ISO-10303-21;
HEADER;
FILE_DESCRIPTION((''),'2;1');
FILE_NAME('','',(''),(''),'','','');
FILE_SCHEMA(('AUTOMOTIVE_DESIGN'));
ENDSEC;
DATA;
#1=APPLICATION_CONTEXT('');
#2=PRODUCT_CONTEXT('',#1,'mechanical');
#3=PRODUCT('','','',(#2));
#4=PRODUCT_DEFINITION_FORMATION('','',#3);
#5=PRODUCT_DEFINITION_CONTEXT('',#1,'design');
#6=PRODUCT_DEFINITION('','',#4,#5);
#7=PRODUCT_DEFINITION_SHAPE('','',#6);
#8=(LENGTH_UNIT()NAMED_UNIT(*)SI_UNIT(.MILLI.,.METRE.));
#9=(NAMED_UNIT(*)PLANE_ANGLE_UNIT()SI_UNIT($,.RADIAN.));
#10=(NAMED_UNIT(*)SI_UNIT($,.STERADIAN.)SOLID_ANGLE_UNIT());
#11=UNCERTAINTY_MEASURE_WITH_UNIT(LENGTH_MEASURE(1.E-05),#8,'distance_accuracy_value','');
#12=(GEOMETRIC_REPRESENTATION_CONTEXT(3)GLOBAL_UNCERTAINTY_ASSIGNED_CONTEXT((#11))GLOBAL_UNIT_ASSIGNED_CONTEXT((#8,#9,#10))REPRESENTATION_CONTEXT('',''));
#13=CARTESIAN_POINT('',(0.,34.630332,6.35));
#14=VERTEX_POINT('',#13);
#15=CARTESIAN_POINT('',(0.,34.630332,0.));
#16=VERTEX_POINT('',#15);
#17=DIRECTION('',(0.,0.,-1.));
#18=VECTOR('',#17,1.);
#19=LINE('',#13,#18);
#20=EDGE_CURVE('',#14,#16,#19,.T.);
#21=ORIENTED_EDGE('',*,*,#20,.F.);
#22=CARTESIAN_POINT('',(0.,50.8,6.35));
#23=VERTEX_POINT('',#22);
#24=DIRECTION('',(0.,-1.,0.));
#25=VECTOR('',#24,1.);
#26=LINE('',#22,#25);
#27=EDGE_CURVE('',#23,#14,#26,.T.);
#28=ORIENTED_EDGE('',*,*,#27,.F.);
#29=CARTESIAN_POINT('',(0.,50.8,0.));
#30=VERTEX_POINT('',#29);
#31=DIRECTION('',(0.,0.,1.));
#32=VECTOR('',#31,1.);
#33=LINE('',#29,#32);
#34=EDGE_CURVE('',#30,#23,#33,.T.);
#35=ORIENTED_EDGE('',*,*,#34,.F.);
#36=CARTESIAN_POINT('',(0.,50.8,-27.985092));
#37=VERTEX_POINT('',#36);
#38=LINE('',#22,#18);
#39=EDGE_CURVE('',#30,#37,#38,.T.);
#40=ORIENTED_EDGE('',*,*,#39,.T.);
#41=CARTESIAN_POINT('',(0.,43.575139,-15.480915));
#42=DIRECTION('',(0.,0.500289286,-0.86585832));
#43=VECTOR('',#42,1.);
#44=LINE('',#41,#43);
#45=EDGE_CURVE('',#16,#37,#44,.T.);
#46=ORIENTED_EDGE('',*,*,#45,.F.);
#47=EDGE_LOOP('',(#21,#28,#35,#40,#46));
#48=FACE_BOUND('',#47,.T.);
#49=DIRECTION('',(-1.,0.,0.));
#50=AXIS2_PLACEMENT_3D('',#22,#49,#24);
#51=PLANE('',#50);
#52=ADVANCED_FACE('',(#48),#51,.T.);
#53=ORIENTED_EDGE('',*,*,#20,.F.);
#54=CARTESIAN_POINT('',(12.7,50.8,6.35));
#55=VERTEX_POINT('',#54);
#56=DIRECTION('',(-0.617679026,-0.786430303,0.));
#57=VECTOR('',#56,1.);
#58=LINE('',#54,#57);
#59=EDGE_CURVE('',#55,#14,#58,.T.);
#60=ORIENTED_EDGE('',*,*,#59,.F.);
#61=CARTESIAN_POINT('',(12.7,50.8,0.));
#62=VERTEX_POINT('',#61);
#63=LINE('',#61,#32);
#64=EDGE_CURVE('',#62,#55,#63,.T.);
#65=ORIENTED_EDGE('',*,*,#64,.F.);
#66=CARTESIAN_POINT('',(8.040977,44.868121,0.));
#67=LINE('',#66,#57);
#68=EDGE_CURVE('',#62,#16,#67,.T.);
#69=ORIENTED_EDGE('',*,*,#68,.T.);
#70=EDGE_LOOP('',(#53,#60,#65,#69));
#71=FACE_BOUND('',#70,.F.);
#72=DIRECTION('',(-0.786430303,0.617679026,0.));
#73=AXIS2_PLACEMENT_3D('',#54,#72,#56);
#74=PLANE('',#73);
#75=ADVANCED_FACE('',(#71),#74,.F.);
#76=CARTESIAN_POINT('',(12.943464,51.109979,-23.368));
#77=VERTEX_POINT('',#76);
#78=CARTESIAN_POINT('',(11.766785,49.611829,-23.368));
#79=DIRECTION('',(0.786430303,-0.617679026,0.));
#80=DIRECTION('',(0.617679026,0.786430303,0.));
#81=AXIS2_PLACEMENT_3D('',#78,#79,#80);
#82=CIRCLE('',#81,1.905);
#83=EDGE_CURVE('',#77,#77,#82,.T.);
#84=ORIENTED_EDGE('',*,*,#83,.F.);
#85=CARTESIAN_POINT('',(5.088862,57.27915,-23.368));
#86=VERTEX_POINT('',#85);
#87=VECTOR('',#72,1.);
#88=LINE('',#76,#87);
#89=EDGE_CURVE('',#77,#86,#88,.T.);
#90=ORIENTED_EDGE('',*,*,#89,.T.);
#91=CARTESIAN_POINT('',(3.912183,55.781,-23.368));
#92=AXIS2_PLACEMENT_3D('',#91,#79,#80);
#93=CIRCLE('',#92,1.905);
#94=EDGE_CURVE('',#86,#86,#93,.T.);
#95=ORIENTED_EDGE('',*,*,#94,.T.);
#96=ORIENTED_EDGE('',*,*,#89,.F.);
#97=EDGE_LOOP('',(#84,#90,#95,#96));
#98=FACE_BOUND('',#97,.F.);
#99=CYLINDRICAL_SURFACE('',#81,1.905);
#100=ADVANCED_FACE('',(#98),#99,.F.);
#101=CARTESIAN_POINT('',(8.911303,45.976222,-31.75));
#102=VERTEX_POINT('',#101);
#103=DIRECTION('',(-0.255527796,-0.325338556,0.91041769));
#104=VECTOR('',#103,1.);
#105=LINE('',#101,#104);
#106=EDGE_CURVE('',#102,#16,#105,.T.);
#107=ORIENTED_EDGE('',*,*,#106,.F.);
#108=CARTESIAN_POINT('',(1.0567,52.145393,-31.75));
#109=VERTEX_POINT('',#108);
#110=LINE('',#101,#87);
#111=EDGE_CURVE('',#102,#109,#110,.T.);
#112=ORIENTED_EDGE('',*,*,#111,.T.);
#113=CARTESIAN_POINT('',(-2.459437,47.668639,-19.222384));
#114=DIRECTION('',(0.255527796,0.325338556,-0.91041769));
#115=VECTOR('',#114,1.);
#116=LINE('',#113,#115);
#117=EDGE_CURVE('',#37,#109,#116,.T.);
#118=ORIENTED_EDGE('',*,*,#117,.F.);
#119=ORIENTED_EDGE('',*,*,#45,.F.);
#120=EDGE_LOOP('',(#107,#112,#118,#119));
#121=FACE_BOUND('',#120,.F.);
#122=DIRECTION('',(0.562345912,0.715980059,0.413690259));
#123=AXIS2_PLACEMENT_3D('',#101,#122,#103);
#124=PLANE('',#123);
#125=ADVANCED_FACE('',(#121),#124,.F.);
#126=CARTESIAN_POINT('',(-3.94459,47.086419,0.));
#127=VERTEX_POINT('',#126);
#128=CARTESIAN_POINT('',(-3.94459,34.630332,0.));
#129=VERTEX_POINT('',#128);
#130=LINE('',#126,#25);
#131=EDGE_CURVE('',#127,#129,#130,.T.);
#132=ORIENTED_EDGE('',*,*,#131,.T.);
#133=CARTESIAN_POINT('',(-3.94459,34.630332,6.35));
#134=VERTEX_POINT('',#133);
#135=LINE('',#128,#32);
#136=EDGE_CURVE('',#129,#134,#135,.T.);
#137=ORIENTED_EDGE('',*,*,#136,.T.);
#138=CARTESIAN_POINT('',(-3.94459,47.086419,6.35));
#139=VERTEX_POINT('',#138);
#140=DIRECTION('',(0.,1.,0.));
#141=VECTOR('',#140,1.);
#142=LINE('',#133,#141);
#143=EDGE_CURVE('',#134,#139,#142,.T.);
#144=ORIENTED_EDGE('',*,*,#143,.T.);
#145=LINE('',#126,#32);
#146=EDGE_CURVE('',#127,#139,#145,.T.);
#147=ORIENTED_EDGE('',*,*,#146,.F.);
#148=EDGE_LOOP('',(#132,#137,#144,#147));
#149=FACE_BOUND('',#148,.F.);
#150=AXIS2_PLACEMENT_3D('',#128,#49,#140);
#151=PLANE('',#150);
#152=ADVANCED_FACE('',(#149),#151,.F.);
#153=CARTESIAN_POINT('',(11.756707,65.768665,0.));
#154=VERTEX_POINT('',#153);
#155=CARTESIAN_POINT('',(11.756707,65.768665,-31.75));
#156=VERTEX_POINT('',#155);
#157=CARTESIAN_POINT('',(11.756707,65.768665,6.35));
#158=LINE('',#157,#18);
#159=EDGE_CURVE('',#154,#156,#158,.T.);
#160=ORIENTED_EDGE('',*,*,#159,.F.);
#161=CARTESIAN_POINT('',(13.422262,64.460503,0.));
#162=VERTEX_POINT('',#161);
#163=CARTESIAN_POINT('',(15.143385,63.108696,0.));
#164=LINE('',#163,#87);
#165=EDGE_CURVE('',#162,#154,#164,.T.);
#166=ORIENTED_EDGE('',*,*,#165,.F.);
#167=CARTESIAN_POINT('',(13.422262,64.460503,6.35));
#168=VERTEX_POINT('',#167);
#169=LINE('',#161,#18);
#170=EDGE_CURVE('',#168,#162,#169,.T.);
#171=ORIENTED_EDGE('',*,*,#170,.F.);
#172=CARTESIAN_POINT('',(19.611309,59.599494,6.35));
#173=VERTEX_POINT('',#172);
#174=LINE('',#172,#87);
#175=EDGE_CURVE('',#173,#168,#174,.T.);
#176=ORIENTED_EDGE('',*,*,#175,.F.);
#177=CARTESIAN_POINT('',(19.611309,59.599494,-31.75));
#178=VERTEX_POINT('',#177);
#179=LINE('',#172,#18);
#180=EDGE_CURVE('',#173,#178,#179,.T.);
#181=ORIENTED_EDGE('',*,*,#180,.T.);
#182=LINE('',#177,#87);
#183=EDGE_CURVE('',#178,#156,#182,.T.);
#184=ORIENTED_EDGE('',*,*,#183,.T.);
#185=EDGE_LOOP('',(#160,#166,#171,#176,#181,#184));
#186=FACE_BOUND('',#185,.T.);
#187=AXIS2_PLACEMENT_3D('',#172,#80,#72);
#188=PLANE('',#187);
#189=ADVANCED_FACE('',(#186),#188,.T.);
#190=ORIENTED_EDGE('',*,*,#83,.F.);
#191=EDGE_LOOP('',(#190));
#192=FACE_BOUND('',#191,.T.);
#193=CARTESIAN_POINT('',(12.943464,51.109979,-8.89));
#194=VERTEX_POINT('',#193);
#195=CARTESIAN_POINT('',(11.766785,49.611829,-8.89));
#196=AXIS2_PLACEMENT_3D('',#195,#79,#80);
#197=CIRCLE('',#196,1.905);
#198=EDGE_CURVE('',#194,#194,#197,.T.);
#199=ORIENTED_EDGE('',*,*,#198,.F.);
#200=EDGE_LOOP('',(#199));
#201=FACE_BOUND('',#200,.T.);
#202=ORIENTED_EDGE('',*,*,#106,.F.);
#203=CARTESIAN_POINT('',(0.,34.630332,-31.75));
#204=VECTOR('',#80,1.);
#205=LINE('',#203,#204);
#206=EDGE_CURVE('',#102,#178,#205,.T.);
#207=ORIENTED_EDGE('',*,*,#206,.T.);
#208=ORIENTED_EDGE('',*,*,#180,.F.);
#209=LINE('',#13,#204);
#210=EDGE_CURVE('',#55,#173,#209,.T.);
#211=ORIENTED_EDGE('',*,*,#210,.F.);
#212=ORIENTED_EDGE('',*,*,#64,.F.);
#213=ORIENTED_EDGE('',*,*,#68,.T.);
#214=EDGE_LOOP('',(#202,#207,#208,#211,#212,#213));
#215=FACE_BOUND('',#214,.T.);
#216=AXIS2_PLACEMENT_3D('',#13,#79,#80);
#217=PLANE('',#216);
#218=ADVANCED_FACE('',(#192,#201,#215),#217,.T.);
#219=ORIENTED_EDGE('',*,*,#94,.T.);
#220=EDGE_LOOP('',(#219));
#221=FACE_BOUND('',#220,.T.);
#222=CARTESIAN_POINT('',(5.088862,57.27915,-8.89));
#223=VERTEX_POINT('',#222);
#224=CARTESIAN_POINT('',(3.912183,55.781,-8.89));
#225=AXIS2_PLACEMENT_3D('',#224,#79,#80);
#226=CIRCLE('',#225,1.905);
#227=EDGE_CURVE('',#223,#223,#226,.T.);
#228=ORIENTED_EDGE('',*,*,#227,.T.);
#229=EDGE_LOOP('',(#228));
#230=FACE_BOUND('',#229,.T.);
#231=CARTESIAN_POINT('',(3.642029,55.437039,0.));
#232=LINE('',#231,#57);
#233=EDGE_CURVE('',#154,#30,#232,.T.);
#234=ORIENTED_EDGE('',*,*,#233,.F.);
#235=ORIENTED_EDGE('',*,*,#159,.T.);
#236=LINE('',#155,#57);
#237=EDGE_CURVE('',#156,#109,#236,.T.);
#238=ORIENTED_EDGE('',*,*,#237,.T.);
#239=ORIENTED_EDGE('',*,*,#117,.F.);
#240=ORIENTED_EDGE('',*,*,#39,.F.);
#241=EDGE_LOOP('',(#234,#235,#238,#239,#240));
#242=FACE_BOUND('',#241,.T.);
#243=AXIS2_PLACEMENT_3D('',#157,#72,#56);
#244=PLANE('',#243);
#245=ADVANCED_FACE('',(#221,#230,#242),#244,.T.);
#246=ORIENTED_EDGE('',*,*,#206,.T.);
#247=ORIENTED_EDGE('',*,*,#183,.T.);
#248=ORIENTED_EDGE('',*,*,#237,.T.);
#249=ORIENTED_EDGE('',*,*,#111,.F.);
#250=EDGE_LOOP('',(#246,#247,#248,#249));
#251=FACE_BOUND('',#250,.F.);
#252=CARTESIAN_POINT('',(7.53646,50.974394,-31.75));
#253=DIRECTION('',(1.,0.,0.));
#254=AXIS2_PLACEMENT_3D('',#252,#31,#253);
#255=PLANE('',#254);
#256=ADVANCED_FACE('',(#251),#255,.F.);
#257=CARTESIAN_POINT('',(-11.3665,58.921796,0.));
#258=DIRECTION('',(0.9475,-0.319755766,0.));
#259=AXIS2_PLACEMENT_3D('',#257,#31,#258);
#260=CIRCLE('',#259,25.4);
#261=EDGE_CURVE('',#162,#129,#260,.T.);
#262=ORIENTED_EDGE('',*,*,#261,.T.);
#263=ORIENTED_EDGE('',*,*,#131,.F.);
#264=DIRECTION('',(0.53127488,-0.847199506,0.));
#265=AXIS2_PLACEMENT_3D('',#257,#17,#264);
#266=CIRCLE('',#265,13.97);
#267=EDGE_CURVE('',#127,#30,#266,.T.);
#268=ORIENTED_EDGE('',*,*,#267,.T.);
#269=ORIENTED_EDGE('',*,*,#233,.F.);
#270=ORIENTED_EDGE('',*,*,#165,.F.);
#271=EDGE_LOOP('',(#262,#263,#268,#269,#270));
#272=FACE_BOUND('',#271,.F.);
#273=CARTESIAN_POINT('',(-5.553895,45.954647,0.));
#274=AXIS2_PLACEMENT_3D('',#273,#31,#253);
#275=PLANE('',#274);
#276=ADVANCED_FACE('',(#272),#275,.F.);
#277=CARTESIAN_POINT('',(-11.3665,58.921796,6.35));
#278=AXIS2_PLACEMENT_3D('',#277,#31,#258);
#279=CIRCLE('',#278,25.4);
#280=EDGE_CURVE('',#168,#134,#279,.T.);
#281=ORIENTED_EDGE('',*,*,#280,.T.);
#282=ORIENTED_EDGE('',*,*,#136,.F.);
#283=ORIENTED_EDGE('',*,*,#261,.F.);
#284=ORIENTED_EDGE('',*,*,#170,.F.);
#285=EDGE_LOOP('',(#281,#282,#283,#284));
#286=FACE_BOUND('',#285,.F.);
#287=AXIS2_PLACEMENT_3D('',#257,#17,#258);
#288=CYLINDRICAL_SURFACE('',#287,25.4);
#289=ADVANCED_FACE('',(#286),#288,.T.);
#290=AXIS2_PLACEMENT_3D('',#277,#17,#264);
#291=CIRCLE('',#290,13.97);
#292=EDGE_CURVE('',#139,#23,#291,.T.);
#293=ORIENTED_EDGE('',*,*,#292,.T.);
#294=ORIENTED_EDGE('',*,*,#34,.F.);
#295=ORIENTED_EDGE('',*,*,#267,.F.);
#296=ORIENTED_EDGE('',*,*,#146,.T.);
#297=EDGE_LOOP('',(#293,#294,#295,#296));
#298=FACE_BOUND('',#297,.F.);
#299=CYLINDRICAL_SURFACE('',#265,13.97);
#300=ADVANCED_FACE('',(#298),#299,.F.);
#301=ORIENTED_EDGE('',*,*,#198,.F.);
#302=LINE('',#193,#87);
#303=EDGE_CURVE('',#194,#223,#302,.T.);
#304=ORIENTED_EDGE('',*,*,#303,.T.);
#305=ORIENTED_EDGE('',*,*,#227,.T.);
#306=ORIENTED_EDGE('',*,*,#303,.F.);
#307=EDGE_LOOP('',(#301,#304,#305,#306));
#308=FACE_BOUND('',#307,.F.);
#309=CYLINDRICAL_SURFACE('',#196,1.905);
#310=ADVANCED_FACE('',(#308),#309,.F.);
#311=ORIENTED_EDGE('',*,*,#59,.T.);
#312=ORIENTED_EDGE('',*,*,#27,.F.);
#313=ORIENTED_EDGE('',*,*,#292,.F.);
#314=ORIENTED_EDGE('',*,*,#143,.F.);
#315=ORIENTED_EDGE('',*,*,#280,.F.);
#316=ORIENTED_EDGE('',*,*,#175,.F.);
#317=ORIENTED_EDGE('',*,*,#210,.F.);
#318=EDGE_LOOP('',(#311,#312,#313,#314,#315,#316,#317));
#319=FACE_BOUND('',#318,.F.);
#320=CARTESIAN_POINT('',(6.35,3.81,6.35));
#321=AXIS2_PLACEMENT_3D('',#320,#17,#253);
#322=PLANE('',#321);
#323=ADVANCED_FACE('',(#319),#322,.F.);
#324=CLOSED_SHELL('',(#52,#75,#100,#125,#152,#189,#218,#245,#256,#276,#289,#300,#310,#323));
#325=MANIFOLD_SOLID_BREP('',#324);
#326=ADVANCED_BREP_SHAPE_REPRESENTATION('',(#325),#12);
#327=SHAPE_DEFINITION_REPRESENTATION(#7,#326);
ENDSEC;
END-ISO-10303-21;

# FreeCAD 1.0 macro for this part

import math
import FreeCAD as App
import Part
import Sketcher
from FreeCAD import Vector
Q = App.Units.Quantity

doc = App.newDocument("Part")
body = doc.addObject("PartDesign::Body", "Body")

# Sketch on XY plane
sketch1 = body.newObject("Sketcher::SketchObject", "Sketch")
sketch1.AttachmentSupport = (doc.getObject("XY_Plane"), [""])
sketch1.MapMode = "FlatFace"
sketch1.addGeometry([
    Part.LineSegment(Vector(0, 50.8, 0), Vector(0, 0, 0)),  # 0
    Part.LineSegment(Vector(0, 0, 0), Vector(12.7, 0, 0)),  # 1
    Part.LineSegment(Vector(12.7, 0, 0), Vector(12.7, 50.8, 0)),  # 2
    Part.ArcOfCircle(Part.Circle(Vector(-11.3665, 58.921796, 0), Vector(0, 0, 1), 25.4), math.radians(-18.648155), math.radians(286.989784)),  # 3
    Part.LineSegment(Vector(-3.94459, 34.630332, 0), Vector(-3.94459, 47.086419, 0)),  # 4
    Part.ArcOfCircle(Part.Circle(Vector(-11.3665, 58.921796, 0), Vector(0, 0, 1), 13.97), math.radians(-35.547249), math.radians(302.091634)),  # 5
], False)
sketch1.addConstraint([
    Sketcher.Constraint("Coincident", 0, 2, 1, 1),
    Sketcher.Constraint("Coincident", 1, 2, 2, 1),
    Sketcher.Constraint("Coincident", 2, 2, 3, 1),
    Sketcher.Constraint("Coincident", 3, 2, 4, 1),
    Sketcher.Constraint("Coincident", 4, 2, 5, 2),
    Sketcher.Constraint("Coincident", 5, 1, 0, 1),
    Sketcher.Constraint("Vertical", 0),
    Sketcher.Constraint("Horizontal", 1),
    Sketcher.Constraint("Vertical", 2),
    Sketcher.Constraint("Vertical", 4),
    Sketcher.Constraint("Coincident", 0, 2, -1, 1),
    Sketcher.Constraint("Coincident", 5, 3, 3, 3),
    Sketcher.Constraint("Horizontal", 2, 2, 5, 1),
    Sketcher.Constraint("Radius", 3, Q("1 in")),
    Sketcher.Constraint("DistanceY", 0, 2, 0, 1, Q("2 in")),
    Sketcher.Constraint("Radius", 5, Q("0.55 in")),
    Sketcher.Constraint("DistanceX", 1, 1, 1, 2, Q("0.5 in")),
    Sketcher.Constraint("DistanceY", 4, 1, 4, 2, 12.456087),
])
pad1 = body.newObject("PartDesign::Pad", "Pad")
pad1.Profile = sketch1
pad1.Length = Q("0.25 in")

# Sketch on XY plane
sketch2 = body.newObject("Sketcher::SketchObject", "Sketch001")
sketch2.AttachmentSupport = (doc.getObject("XY_Plane"), [""])
sketch2.MapMode = "FlatFace"
sketch2.addGeometry([
    Part.LineSegment(Vector(-6.35, 0, 0), Vector(-6.35, 7.62, 0)),
    Part.LineSegment(Vector(-6.35, 7.62, 0), Vector(19.05, 7.62, 0)),
    Part.LineSegment(Vector(19.05, 7.62, 0), Vector(19.05, 0, 0)),
    Part.LineSegment(Vector(19.05, 0, 0), Vector(-6.35, 0, 0)),
], False)
sketch2.addConstraint([
    Sketcher.Constraint("Coincident", 0, 2, 1, 1),
    Sketcher.Constraint("Coincident", 1, 2, 2, 1),
    Sketcher.Constraint("Coincident", 2, 2, 3, 1),
    Sketcher.Constraint("Coincident", 3, 2, 0, 1),
    Sketcher.Constraint("Vertical", 0),
    Sketcher.Constraint("Horizontal", 1),
    Sketcher.Constraint("Vertical", 2),
    Sketcher.Constraint("Horizontal", 3),
    Sketcher.Constraint("PointOnObject", 2, 2, -1),
    Sketcher.Constraint("DistanceX", 1, 1, 1, 2, Q("1 in")),
    Sketcher.Constraint("DistanceY", 0, 1, 0, 2, Q("0.3 in")),
    Sketcher.Constraint("DistanceX", 0, 2, -1, 1, Q("0.25 in")),
])
pad2 = body.newObject("PartDesign::Pad", "Pad001")
pad2.Profile = sketch2
pad2.Type = "TwoLengths"
pad2.Length = Q("2 in")
pad2.Length2 = Q("0.25 in")
pad2.Reversed = True

# Sketch on XZ plane
sketch3 = body.newObject("Sketcher::SketchObject", "Sketch002")
sketch3.AttachmentSupport = (doc.getObject("XZ_Plane"), [""])
sketch3.MapMode = "FlatFace"
sketch3.addGeometry([
    Part.Circle(Vector(6.35, -8.89, 0), Vector(0, 0, 1), 1.905),
    Part.Circle(Vector(6.35, -23.368, 0), Vector(0, 0, 1), 1.905),
], False)
sketch3.addConstraint([
    Sketcher.Constraint("Equal", 0, 1),
    Sketcher.Constraint("Vertical", 0, 3, 1, 3),
    Sketcher.Constraint("Diameter", 0, Q("0.15 in")),
    Sketcher.Constraint("DistanceX", -1, 1, 0, 3, Q("0.25 in")),
    Sketcher.Constraint("DistanceY", 0, 3, -1, 1, Q("0.35 in")),
    Sketcher.Constraint("DistanceY", 1, 3, -1, 1, Q("0.92 in")),
])
pocket1 = body.newObject("PartDesign::Pocket", "Pocket")
pocket1.Profile = sketch3
pocket1.Length = Q("1 in")

# Sketch on XZ plane
sketch4 = body.newObject("Sketcher::SketchObject", "Sketch003")
sketch4.AttachmentSupport = (doc.getObject("XZ_Plane"), [""])
sketch4.MapMode = "FlatFace"
sketch4.AttachmentOffset = App.Placement(Vector(0, 0, -0.3 * 25.4), App.Rotation())
sketch4.addGeometry([
    Part.LineSegment(Vector(19.05, -38.1, 0), Vector(19.05, -50.8, 0)),
    Part.LineSegment(Vector(19.05, -50.8, 0), Vector(-6.35, -50.8, 0)),
    Part.LineSegment(Vector(-6.35, -50.8, 0), Vector(-6.35, -38.1, 0)),
    Part.LineSegment(Vector(-6.35, -38.1, 0), Vector(19.05, -38.1, 0)),
], False)
sketch4.addConstraint([
    Sketcher.Constraint("Coincident", 0, 2, 1, 1),
    Sketcher.Constraint("Coincident", 1, 2, 2, 1),
    Sketcher.Constraint("Coincident", 2, 2, 3, 1),
    Sketcher.Constraint("Coincident", 3, 2, 0, 1),
    Sketcher.Constraint("Vertical", 0),
    Sketcher.Constraint("Horizontal", 1),
    Sketcher.Constraint("Vertical", 2),
    Sketcher.Constraint("Horizontal", 3),
    Sketcher.Constraint("DistanceX", 1, 2, 1, 1, Q("1 in")),
    Sketcher.Constraint("DistanceY", 0, 2, 0, 1, Q("0.5 in")),
    Sketcher.Constraint("DistanceY", 0, 2, -1, 1, Q("2 in")),
    Sketcher.Constraint("DistanceX", -1, 1, 0, 2, Q("0.75 in")),
])
pocket2 = body.newObject("PartDesign::Pocket", "Pocket001")
pocket2.Profile = sketch4
pocket2.Length = Q("1 in")
pocket2.Reversed = True

# Sketch on XY plane
sketch5 = body.newObject("Sketcher::SketchObject", "Sketch004")
sketch5.AttachmentSupport = (doc.getObject("XY_Plane"), [""])
sketch5.MapMode = "FlatFace"
sketch5.AttachmentOffset = App.Placement(Vector(0, 0, 0.25 * 25.4), App.Rotation())
sketch5.addGeometry([
    Part.LineSegment(Vector(12.7, 50.8, 0), Vector(0, 34.630332, 0)),  # 0
    Part.LineSegment(Vector(0, 34.630332, 0), Vector(0, 17.315166, 0)),  # 1
    Part.LineSegment(Vector(0, 17.315166, 0), Vector(-24.970034, 14.048837, 0)),  # 2
    Part.LineSegment(Vector(-24.970034, 14.048837, 0), Vector(-24.970034, -25.591092, 0)),  # 3
    Part.LineSegment(Vector(-24.970034, -25.591092, 0), Vector(41.82481, -22.469837, 0)),  # 4
    Part.LineSegment(Vector(41.82481, -22.469837, 0), Vector(37.455056, 0, 0)),  # 5
    Part.LineSegment(Vector(37.455056, 0, 0), Vector(37.455056, 34.630332, 0)),  # 6
    Part.LineSegment(Vector(37.455056, 34.630332, 0), Vector(12.7, 50.8, 0)),  # 7
], False)
sketch5.addConstraint([
    Sketcher.Constraint("Coincident", 0, 2, 1, 1),
    Sketcher.Constraint("Coincident", 1, 2, 2, 1),
    Sketcher.Constraint("Coincident", 2, 2, 3, 1),
    Sketcher.Constraint("Coincident", 3, 2, 4, 1),
    Sketcher.Constraint("Coincident", 4, 2, 5, 1),
    Sketcher.Constraint("Coincident", 5, 2, 6, 1),
    Sketcher.Constraint("Coincident", 6, 2, 7, 1),
    Sketcher.Constraint("Coincident", 7, 2, 0, 1),
    Sketcher.Constraint("Vertical", 1),
    Sketcher.Constraint("Vertical", 3),
    Sketcher.Constraint("Vertical", 6),
    Sketcher.Constraint("PointOnObject", 0, 2, -2),
    Sketcher.Constraint("PointOnObject", 5, 2, -1),
    Sketcher.Constraint("Horizontal", 0, 2, 6, 2),
    Sketcher.Constraint("DistanceY", -1, 1, 7, 2, Q("2 in")),
    Sketcher.Constraint("DistanceX", -1, 1, 7, 2, Q("0.5 in")),
    Sketcher.Constraint("DistanceY", 3, 2, 3, 1, 39.639929),
    Sketcher.Constraint("DistanceY", 6, 1, 6, 2, 34.630332),
    Sketcher.Constraint("Distance", 4, 66.867731),
    Sketcher.Constraint("Distance", 5, 22.890792),
    Sketcher.Constraint("DistanceY", 1, 2, 1, 1, 17.315166),
    Sketcher.Constraint("DistanceX", -1, 1, 4, 2, 41.82481),
    Sketcher.Constraint("DistanceY", 2, 2, 1, 2, 3.266329),
    Sketcher.Constraint("DistanceY", 4, 2, 0, 2, 57.100169),
])
pocket3 = body.newObject("PartDesign::Pocket", "Pocket002")
pocket3.Profile = sketch5
pocket3.Length = Q("2 in")

# Sketch on XY plane
sketch6 = body.newObject("Sketcher::SketchObject", "Sketch005")
sketch6.AttachmentSupport = (doc.getObject("XY_Plane"), [""])
sketch6.MapMode = "FlatFace"
sketch6.AttachmentOffset = App.Placement(Vector(0, 0, 0.25 * 25.4), App.Rotation())
sketch6.addGeometry([
    Part.LineSegment(Vector(0, 50.8, 0), Vector(0, 34.630332, 0)),
    Part.LineSegment(Vector(0, 34.630332, 0), Vector(19.611309, 59.599494, 0)),
    Part.LineSegment(Vector(19.611309, 59.599494, 0), Vector(11.756707, 65.768665, 0)),
    Part.LineSegment(Vector(11.756707, 65.768665, 0), Vector(0, 50.8, 0)),
], False)
sketch6.addConstraint([
    Sketcher.Constraint("Coincident", 0, 2, 1, 1),
    Sketcher.Constraint("Coincident", 1, 2, 2, 1),
    Sketcher.Constraint("Coincident", 2, 2, 3, 1),
    Sketcher.Constraint("Coincident", 3, 2, 0, 1),
    Sketcher.Constraint("Vertical", 0),
    Sketcher.Constraint("PointOnObject", 0, 2, -2),
    Sketcher.Constraint("Perpendicular", 1, 2),
    Sketcher.Constraint("Perpendicular", 2, 3),
    Sketcher.Constraint("DistanceY", -1, 1, 3, 2, Q("2 in")),
    Sketcher.Constraint("Distance", 1, Q("1.25 in")),
    Sketcher.Constraint("DistanceY", 0, 2, 0, 1, 16.169668),
    Sketcher.Constraint("DistanceX", -1, 1, 1, 2, 19.611309),
])
pad3 = body.newObject("PartDesign::Pad", "Pad002")
pad3.Profile = sketch6
pad3.Length = Q("1.5 in")
pad3.Reversed = True

# Sketch on an angled plane
sketch7 = body.newObject("Sketcher::SketchObject", "Sketch006")
sketch7.Placement = App.Placement(Vector(-16.822082, 13.21242, 0), App.Rotation(Vector(0.617679026, 0.786430303, 0), Vector(0, 0, 1.000000001), Vector(0.786430303, -0.617679026, 0), "ZXY"))
sketch7.addGeometry([
    Part.Circle(Vector(46.284342, -8.89, 0), Vector(0, 0, 1), 1.905),
    Part.Circle(Vector(46.284342, -23.368, 0), Vector(0, 0, 1), 1.905),
], False)
sketch7.addConstraint([
    Sketcher.Constraint("Equal", 0, 1),
    Sketcher.Constraint("Vertical", 0, 3, 1, 3),
    Sketcher.Constraint("Diameter", 0, Q("0.15 in")),
    Sketcher.Constraint("DistanceY", 0, 3, -1, 1, Q("0.35 in")),
    Sketcher.Constraint("DistanceY", 1, 3, -1, 1, Q("0.92 in")),
    Sketcher.Constraint("DistanceX", -1, 1, 0, 3, 46.284342),
])
pocket4 = body.newObject("PartDesign::Pocket", "Pocket003")
pocket4.Profile = sketch7
pocket4.Length = Q("1 in")

# Sketch on an angled plane
sketch8 = body.newObject("Sketcher::SketchObject", "Sketch007")
sketch8.Placement = App.Placement(Vector(-16.822082, 13.21242, 0), App.Rotation(Vector(0.617679026, 0.786430303, 0), Vector(0, 0, 1.000000001), Vector(0.786430303, -0.617679026, 0), "ZXY"))
sketch8.addGeometry([
    Part.LineSegment(Vector(27.234342, -31.75, 0), Vector(41.661419, -31.75, 0)),
    Part.LineSegment(Vector(41.661419, -31.75, 0), Vector(27.234342, 0, 0)),
    Part.LineSegment(Vector(27.234342, 0, 0), Vector(27.234342, -31.75, 0)),
], False)
sketch8.addConstraint([
    Sketcher.Constraint("Coincident", 0, 2, 1, 1),
    Sketcher.Constraint("Coincident", 1, 2, 2, 1),
    Sketcher.Constraint("Coincident", 2, 2, 0, 1),
    Sketcher.Constraint("Horizontal", 0),
    Sketcher.Constraint("Vertical", 2),
    Sketcher.Constraint("PointOnObject", 1, 2, -1),
    Sketcher.Constraint("DistanceY", 2, 2, 2, 1, Q("1.25 in")),
    Sketcher.Constraint("DistanceX", 0, 1, 0, 2, 14.427077),
    Sketcher.Constraint("DistanceX", -1, 1, 0, 2, 41.661419),
])
pocket5 = body.newObject("PartDesign::Pocket", "Pocket004")
pocket5.Profile = sketch8
pocket5.Length = Q("1 in")

doc.recompute()
